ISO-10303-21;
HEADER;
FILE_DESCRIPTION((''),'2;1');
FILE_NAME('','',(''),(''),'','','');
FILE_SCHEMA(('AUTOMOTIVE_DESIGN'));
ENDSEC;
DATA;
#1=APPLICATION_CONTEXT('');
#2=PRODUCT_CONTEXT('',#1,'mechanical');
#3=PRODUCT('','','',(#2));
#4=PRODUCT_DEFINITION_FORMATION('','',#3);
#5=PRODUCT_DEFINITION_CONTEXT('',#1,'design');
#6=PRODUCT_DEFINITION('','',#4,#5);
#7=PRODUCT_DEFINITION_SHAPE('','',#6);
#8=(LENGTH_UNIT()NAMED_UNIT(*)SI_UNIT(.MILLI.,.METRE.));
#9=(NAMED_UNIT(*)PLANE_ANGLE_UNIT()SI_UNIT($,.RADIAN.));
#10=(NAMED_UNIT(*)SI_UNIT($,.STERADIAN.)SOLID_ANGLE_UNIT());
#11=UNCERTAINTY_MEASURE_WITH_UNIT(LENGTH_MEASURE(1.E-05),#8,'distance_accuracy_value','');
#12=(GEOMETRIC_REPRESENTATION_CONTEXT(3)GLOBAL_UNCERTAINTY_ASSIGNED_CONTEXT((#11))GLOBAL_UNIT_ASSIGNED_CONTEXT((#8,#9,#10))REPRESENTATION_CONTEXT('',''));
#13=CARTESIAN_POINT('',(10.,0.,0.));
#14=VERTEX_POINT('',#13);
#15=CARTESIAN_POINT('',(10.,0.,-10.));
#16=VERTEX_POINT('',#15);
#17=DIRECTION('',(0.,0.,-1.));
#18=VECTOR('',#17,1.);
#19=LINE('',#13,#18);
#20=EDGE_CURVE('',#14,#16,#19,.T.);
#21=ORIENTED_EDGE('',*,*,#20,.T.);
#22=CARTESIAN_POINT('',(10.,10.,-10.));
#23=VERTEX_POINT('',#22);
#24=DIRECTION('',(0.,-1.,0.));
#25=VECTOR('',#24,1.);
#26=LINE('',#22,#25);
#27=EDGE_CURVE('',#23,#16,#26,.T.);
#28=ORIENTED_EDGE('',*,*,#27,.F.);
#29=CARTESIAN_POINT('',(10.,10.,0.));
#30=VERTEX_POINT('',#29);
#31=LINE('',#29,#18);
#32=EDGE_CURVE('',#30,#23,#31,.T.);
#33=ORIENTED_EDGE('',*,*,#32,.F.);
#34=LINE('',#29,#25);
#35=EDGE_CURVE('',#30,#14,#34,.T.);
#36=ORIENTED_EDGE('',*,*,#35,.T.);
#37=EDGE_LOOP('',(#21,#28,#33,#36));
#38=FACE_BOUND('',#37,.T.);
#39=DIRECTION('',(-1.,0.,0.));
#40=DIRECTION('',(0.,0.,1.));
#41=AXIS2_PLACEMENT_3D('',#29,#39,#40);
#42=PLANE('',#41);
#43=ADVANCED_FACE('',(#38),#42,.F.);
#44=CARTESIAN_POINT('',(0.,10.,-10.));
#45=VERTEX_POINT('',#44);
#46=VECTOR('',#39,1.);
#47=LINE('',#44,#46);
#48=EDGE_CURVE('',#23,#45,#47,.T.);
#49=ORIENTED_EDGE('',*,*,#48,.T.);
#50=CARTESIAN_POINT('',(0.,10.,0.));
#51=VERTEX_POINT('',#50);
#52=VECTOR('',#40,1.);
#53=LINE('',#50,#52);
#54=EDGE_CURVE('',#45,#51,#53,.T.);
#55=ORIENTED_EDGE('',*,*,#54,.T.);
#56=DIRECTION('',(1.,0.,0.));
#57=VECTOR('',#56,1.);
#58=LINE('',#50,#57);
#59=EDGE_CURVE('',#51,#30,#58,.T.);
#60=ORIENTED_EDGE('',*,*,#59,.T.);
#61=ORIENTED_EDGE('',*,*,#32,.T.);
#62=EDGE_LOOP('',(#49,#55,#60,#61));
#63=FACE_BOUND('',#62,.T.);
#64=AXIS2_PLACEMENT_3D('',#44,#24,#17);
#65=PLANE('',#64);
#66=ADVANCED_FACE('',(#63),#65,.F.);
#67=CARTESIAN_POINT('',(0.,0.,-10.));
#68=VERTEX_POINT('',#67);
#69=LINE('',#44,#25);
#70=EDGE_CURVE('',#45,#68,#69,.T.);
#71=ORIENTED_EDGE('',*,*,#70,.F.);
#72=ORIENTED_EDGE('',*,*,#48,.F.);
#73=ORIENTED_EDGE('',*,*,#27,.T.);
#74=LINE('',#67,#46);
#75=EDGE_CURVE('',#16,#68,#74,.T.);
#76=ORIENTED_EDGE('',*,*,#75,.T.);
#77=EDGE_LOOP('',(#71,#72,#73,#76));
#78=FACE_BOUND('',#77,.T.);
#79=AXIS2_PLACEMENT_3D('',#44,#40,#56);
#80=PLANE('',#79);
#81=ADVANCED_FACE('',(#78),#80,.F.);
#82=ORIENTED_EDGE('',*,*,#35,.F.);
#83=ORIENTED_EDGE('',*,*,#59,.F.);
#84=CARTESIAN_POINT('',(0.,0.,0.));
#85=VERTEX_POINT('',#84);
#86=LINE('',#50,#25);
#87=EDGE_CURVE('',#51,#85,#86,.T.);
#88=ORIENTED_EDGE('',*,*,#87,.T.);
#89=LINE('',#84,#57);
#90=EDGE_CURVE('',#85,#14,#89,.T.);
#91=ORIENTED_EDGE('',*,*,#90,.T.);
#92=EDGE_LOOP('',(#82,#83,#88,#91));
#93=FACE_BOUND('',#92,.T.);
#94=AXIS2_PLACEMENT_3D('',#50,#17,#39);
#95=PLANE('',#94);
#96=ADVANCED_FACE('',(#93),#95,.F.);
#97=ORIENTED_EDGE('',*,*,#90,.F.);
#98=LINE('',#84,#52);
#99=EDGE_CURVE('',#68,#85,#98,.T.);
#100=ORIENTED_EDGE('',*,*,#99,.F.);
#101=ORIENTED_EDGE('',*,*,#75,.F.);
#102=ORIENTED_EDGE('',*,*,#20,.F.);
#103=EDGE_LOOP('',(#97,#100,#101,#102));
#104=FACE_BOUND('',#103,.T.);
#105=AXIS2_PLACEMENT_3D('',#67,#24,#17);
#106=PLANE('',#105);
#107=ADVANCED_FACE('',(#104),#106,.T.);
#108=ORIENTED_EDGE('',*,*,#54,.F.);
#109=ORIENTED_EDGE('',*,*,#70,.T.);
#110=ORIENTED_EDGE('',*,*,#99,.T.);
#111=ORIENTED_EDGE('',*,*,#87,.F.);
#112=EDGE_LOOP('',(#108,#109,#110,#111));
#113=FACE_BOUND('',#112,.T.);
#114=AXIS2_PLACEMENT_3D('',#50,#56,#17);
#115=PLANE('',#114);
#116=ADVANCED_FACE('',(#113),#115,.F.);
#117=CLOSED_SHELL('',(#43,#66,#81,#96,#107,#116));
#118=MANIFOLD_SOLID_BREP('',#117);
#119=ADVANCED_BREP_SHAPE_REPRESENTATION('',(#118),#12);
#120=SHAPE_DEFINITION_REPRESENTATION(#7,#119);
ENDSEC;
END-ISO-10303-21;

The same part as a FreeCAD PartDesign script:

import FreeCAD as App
import Part
import Sketcher
from FreeCAD import Vector


def add_polygon(sketch, points):
    """Adds a closed chain of lines whose ends are joined by coincident constraints."""
    first, n = sketch.GeometryCount, len(points)
    for a, b in zip(points, points[1:] + points[:1]):
        sketch.addGeometry(Part.LineSegment(App.Vector(*a, 0), App.Vector(*b, 0)), False)
    for i in range(n):
        sketch.addConstraint(Sketcher.Constraint("Coincident", first + i, 2, first + (i + 1) % n, 1))

doc = App.newDocument("Part")
body = doc.addObject("PartDesign::Body", "Body")

# Sketch on XZ plane
sketch1 = body.newObject("Sketcher::SketchObject", "Sketch")
sketch1.AttachmentSupport = (doc.getObject("XZ_Plane"), [""])
sketch1.MapMode = "FlatFace"
add_polygon(sketch1, [(0, -10), (0, 0), (10, 0), (10, -10)])  # lines 0-3
sketch1.addConstraint(Sketcher.Constraint("Vertical", 0))
sketch1.addConstraint(Sketcher.Constraint("Horizontal", 1))
sketch1.addConstraint(Sketcher.Constraint("Vertical", 2))
sketch1.addConstraint(Sketcher.Constraint("Horizontal", 3))
sketch1.addConstraint(Sketcher.Constraint("Coincident", 0, 2, -1, 1))
sketch1.addConstraint(Sketcher.Constraint("Equal", 3, 0))
sketch1.addConstraint(Sketcher.Constraint("DistanceX", 1, 1, 1, 2, 10.0))
pad1 = body.newObject("PartDesign::Pad", "Pad")
pad1.Profile = sketch1
pad1.Length = 10
pad1.Reversed = True

doc.recompute()
